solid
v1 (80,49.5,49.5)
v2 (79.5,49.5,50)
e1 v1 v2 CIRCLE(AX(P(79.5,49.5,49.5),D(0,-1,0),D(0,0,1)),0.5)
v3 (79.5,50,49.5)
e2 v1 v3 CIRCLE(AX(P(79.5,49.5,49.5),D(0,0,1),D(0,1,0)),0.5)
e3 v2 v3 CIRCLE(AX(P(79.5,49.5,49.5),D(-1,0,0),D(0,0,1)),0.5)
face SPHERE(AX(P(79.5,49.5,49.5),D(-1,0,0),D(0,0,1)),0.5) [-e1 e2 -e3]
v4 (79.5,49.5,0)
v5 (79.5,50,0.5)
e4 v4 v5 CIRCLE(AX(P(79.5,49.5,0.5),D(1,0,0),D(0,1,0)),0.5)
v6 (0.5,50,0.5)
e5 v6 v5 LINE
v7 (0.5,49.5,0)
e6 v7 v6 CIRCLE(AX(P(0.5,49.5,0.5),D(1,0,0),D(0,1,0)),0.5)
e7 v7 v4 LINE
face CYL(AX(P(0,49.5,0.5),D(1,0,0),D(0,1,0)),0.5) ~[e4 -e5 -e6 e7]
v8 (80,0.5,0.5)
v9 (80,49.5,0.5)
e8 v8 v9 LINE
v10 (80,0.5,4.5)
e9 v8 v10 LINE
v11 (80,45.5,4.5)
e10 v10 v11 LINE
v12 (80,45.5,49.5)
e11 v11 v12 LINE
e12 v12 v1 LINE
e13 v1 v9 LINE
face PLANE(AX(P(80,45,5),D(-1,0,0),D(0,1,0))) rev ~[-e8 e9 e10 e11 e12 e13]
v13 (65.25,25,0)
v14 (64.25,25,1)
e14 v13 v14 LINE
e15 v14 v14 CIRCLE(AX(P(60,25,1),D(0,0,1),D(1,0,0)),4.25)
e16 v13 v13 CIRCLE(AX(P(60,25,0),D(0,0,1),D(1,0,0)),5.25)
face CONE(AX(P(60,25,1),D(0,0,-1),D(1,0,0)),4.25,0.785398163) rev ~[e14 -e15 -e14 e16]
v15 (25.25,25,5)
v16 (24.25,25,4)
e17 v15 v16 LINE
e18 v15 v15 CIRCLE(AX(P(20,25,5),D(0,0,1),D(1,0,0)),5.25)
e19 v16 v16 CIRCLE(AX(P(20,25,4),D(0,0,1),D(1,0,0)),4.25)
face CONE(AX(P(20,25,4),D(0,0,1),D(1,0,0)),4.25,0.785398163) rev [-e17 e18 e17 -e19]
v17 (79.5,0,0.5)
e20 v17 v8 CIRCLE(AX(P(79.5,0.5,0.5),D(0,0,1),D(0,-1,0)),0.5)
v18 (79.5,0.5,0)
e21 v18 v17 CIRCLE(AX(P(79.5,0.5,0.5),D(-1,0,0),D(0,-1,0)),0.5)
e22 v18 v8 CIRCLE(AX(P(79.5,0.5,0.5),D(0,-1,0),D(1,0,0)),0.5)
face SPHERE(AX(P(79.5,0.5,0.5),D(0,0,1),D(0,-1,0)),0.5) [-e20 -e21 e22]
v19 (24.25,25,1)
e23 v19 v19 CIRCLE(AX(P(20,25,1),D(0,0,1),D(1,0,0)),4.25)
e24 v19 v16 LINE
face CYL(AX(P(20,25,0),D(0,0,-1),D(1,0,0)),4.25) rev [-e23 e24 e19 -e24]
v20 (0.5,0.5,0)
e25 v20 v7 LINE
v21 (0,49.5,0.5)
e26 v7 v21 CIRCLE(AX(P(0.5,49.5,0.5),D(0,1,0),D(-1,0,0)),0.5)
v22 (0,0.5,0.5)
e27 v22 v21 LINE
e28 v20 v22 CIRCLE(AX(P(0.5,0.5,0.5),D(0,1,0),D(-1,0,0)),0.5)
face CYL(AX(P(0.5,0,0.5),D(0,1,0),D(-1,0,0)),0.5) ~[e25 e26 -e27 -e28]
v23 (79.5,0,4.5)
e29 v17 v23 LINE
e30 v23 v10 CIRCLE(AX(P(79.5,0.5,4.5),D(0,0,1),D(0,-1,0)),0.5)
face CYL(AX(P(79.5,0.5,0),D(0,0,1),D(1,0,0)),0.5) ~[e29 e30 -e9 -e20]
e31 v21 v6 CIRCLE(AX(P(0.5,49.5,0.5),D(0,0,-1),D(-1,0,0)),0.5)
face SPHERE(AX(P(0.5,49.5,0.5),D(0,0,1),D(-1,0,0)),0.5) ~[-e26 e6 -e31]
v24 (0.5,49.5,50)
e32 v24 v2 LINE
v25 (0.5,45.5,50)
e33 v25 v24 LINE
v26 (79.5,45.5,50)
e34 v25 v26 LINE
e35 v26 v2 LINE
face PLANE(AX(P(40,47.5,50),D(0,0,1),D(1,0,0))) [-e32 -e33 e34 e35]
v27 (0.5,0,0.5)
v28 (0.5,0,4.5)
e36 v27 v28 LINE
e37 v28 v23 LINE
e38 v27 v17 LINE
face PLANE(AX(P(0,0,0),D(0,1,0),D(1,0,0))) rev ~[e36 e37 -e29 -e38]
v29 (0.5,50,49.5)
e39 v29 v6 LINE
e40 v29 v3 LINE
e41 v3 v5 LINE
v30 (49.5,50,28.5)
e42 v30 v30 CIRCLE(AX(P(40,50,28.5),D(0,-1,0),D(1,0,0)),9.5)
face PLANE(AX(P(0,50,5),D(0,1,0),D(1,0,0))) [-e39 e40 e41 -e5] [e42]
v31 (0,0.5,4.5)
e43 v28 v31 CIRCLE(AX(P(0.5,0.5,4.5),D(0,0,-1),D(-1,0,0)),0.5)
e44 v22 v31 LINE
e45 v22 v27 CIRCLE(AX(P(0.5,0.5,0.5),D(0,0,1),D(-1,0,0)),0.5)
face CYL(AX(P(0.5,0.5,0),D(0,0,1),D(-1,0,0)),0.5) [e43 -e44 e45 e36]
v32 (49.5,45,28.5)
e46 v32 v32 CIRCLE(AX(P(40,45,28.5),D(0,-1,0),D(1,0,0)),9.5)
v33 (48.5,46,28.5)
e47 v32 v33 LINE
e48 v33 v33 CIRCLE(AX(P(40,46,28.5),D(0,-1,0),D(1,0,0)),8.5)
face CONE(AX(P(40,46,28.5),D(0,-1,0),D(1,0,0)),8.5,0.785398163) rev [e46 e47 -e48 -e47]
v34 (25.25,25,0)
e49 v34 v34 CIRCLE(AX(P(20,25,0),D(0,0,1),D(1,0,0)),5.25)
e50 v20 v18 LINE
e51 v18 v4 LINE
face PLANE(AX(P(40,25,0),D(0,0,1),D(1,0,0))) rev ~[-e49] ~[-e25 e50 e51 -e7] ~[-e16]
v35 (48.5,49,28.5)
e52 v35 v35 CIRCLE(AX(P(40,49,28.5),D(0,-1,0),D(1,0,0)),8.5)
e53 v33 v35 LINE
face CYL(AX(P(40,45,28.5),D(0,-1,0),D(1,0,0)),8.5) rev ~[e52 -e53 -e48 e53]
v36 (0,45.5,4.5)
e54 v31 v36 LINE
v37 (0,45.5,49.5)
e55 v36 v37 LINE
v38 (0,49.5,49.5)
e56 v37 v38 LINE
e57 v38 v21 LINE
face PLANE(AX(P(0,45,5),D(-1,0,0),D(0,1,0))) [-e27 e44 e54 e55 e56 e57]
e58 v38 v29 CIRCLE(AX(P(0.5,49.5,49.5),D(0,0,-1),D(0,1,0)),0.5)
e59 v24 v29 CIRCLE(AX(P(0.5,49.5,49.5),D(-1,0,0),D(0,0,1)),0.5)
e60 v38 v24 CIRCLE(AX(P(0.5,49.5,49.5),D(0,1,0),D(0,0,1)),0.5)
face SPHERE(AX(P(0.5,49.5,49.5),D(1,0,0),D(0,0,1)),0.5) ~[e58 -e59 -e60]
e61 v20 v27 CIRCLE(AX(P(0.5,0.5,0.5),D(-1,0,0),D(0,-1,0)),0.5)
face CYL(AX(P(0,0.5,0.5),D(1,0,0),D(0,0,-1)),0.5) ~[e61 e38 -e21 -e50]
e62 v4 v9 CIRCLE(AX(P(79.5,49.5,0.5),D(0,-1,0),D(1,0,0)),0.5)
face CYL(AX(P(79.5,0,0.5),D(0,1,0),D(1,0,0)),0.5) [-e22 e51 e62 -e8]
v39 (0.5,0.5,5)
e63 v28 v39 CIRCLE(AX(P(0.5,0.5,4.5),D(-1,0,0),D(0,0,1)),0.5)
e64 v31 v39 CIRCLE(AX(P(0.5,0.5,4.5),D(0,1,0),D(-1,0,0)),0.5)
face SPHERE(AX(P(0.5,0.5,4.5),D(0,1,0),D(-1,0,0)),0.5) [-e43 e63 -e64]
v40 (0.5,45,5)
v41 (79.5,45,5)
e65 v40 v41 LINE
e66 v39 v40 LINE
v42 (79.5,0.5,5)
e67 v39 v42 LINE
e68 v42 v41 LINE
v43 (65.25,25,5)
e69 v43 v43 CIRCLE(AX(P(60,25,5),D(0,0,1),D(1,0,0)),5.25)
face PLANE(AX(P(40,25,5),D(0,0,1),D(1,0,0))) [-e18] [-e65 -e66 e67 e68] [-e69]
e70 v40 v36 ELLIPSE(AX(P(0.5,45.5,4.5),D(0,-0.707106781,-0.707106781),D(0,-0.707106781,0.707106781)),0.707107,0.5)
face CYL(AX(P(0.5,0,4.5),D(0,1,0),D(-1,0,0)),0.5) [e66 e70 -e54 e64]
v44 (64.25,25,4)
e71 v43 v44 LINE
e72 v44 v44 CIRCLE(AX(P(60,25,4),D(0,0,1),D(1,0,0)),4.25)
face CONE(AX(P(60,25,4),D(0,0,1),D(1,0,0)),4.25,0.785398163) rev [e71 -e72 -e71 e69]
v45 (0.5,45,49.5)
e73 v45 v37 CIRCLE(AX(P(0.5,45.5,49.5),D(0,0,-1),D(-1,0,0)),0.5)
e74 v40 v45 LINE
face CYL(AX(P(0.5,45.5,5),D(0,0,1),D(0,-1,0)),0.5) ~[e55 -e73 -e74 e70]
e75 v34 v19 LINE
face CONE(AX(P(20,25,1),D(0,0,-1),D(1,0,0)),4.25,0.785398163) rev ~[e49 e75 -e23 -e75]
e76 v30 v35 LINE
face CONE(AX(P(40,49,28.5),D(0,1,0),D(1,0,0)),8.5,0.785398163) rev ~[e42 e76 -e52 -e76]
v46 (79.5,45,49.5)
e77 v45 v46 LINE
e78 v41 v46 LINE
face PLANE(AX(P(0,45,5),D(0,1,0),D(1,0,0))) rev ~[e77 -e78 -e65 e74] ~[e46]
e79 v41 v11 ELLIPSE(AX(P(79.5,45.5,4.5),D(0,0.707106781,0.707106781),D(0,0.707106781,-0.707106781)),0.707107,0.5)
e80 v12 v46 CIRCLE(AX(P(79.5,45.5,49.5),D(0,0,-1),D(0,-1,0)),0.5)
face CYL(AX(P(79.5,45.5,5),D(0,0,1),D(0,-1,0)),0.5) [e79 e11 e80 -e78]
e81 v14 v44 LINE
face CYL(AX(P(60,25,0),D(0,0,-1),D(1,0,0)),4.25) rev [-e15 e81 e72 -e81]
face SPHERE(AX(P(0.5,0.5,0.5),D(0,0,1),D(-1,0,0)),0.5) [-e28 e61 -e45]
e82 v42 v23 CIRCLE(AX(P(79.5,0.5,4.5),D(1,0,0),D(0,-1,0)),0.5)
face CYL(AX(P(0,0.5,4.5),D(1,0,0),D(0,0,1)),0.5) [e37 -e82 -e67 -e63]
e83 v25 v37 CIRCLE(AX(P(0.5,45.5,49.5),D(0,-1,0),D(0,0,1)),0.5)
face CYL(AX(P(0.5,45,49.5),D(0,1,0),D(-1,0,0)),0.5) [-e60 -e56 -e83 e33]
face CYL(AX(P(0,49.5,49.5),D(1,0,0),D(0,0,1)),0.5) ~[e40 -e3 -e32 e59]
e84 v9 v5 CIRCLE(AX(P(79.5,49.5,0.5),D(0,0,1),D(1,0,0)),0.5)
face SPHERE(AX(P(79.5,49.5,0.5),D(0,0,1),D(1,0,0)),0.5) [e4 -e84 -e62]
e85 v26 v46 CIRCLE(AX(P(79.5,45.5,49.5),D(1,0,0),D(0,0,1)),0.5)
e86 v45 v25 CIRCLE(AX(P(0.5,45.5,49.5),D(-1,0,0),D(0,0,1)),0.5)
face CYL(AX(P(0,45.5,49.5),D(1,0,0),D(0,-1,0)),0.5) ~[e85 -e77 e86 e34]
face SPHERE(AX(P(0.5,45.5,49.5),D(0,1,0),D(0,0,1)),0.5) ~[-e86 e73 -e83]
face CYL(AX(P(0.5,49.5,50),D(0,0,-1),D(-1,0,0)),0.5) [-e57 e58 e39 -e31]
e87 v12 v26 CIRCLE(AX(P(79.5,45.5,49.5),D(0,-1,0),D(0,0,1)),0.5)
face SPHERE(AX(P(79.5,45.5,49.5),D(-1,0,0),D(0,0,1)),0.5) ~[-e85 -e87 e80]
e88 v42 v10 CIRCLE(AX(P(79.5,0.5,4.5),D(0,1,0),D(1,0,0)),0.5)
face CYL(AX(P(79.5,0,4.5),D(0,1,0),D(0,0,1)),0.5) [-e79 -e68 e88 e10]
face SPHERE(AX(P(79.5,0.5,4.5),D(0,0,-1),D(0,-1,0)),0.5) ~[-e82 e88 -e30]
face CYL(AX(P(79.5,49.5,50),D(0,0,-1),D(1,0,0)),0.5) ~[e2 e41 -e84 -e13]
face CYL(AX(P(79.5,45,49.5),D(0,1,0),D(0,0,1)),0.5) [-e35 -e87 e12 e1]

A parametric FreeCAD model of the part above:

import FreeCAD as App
import Part
import Sketcher


def edges_at(feature, points):
    """Names of the edges that pass closest to the given points."""
    edges = feature.Shape.Edges
    near = lambda p: min(range(len(edges)), key=lambda i: edges[i].distToShape(Part.Vertex(*p))[0])
    return sorted({f"Edge{near(p) + 1}" for p in points})


def add_polygon(sketch, points):
    """Adds a closed chain of lines whose ends are joined by coincident constraints."""
    first, n = sketch.GeometryCount, len(points)
    for a, b in zip(points, points[1:] + points[:1]):
        sketch.addGeometry(Part.LineSegment(App.Vector(*a, 0), App.Vector(*b, 0)), False)
    for i in range(n):
        sketch.addConstraint(Sketcher.Constraint("Coincident", first + i, 2, first + (i + 1) % n, 1))

doc = App.newDocument("Part")
params = doc.addObject("Spreadsheet::Sheet", "Params")
for row, (alias, value) in enumerate([
    ("sketch1_diameter", "8.5 mm"),
    ("sketch1_width", "80 mm"),
    ("sketch1_height", "50 mm"),
    ("pad1_length", "5 mm"),
    ("sketch2_width", "80 mm"),
    ("sketch2_height", "5 mm"),
    ("pad2_length", "45 mm"),
    ("sketch3_diameter", "17 mm"),
    ("pocket1_length", "25 mm"),
    ("chamfer_size", "1 mm"),
    ("fillet_radius", "0.5 mm"),
], start=1):
    params.set(f"A{row}", alias)
    params.set(f"B{row}", "=" + value)
    params.setAlias(f"B{row}", alias)

body = doc.addObject("PartDesign::Body", "Body")

# Sketch on XY plane
sketch1 = body.newObject("Sketcher::SketchObject", "Sketch")
sketch1.AttachmentSupport = (doc.getObject("XY_Plane"), [""])
sketch1.MapMode = "FlatFace"
add_polygon(sketch1, [(0, 50), (0, 0), (80, 0), (80, 50)])  # lines 0-3
sketch1.addGeometry(Part.Circle(App.Vector(20, 25, 0), App.Vector(0, 0, 1), 4.2), False)  # 4
sketch1.addGeometry(Part.Circle(App.Vector(60, 25, 0), App.Vector(0, 0, 1), 4.2), False)  # 5
sketch1.addConstraint([
    Sketcher.Constraint("Vertical", 0),
    Sketcher.Constraint("Horizontal", 1),
    Sketcher.Constraint("Vertical", 2),
    Sketcher.Constraint("Horizontal", 3),
    Sketcher.Constraint("Coincident", 0, 2, -1, 1),
    Sketcher.Constraint("Equal", 4, 5),
    Sketcher.Constraint("Horizontal", 4, 3, 5, 3),
    Sketcher.Constraint("Diameter", 4, 8.5),
    Sketcher.Constraint("DistanceX", 1, 1, 1, 2, 80.0),
    Sketcher.Constraint("DistanceY", 0, 2, 0, 1, 50.0),
    Sketcher.Constraint("DistanceX", -1, 1, 4, 3, 20.0),
    Sketcher.Constraint("DistanceY", -1, 1, 4, 3, 25.0),
    Sketcher.Constraint("DistanceX", -1, 1, 5, 3, 60.0),
])
sketch1.setExpression("Constraints[11]", "Params.sketch1_diameter")
sketch1.setExpression("Constraints[12]", "Params.sketch1_width")
sketch1.setExpression("Constraints[13]", "Params.sketch1_height")
pad1 = body.newObject("PartDesign::Pad", "Pad")
pad1.Profile = sketch1
pad1.setExpression("Length", "Params.pad1_length")

# Sketch on XY plane
sketch2 = body.newObject("Sketcher::SketchObject", "Sketch001")
sketch2.AttachmentSupport = (doc.getObject("XY_Plane"), [""])
sketch2.MapMode = "FlatFace"
sketch2.AttachmentOffset = App.Placement(App.Vector(0, 0, 5), App.Rotation())
add_polygon(sketch2, [(0, 50), (0, 45), (80, 45), (80, 50)])  # lines 0-3
sketch2.addConstraint([
    Sketcher.Constraint("Vertical", 0),
    Sketcher.Constraint("Horizontal", 1),
    Sketcher.Constraint("Vertical", 2),
    Sketcher.Constraint("Horizontal", 3),
    Sketcher.Constraint("PointOnObject", 0, 2, -2),
    Sketcher.Constraint("DistanceX", 1, 1, 1, 2, 80.0),
    Sketcher.Constraint("DistanceY", 0, 2, 0, 1, 5.0),
    Sketcher.Constraint("DistanceY", -1, 1, 0, 2, 45.0),
])
sketch2.setExpression("Constraints[9]", "Params.sketch2_width")
sketch2.setExpression("Constraints[10]", "Params.sketch2_height")
pad2 = body.newObject("PartDesign::Pad", "Pad001")
pad2.Profile = sketch2
pad2.setExpression("Length", "Params.pad2_length")

# Sketch on XZ plane
sketch3 = body.newObject("Sketcher::SketchObject", "Sketch002")
sketch3.AttachmentSupport = (doc.getObject("XZ_Plane"), [""])
sketch3.MapMode = "FlatFace"
sketch3.AttachmentOffset = App.Placement(App.Vector(0, 0, -45), App.Rotation())
sketch3.addGeometry(Part.Circle(App.Vector(40, 28, 0), App.Vector(0, 0, 1), 8), False)
sketch3.addConstraint([
    Sketcher.Constraint("Diameter", 0, 17.0),
    Sketcher.Constraint("DistanceX", -1, 1, 0, 3, 40.0),
    Sketcher.Constraint("DistanceY", -1, 1, 0, 3, 28.5),
])
sketch3.setExpression("Constraints[0]", "Params.sketch3_diameter")
pocket1 = body.newObject("PartDesign::Pocket", "Pocket")
pocket1.Profile = sketch3
pocket1.setExpression("Length", "Params.pocket1_length")
doc.recompute()

chamfer = body.newObject("PartDesign::Chamfer", "Chamfer")
chamfer.Base = (pocket1, edges_at(pocket1, [
    (31.5, 45, 28.5),
    (31.5, 50, 28.5),
    (15.75, 25, 5),
    (55.75, 25, 5),
    (55.75, 25, 0),
    (15.75, 25, 0),
]))
chamfer.setExpression("Size", "Params.chamfer_size")
doc.recompute()

fillet = body.newObject("PartDesign::Fillet", "Fillet")
fillet.Base = (chamfer, edges_at(chamfer, [
    (40, 50, 50),
    (0, 47.5, 50),
    (40, 45, 50),
    (80, 47.5, 50),
    (0, 50, 25),
    (0, 45, 27.5),
    (0, 22.5, 5),
    (0, 0, 2.5),
    (0, 25, 0),
    (80, 0, 2.5),
    (40, 0, 0),
    (40, 0, 5),
    (80, 22.5, 5),
    (80, 45, 27.5),
    (80, 50, 25),
    (80, 25, 0),
    (40, 50, 0),
]))
fillet.setExpression("Radius", "Params.fillet_radius")

doc.recompute()
